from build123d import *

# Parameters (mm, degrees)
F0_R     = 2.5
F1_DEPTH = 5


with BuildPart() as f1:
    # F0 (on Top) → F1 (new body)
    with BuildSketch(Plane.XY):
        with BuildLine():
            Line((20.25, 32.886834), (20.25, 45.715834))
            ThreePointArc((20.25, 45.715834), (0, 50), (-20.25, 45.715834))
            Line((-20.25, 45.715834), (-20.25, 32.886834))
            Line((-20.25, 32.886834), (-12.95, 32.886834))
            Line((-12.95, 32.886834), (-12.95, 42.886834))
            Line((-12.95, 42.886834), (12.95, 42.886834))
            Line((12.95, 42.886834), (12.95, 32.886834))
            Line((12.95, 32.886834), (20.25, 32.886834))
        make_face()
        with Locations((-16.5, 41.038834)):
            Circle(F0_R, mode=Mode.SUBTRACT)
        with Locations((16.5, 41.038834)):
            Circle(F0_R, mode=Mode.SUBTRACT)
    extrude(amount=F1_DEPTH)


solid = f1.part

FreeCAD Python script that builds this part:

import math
import FreeCAD as App
import Part
import Sketcher

doc = App.newDocument("Part")
body = doc.addObject("PartDesign::Body", "Body")

sketch1 = body.newObject("Sketcher::SketchObject", "Sketch")
sketch1.AttachmentSupport = (doc.getObject("XY_Plane"), [""])
sketch1.MapMode = "FlatFace"
sketch1.addGeometry([
    Part.LineSegment(App.Vector(20.2, 32.9, 0), App.Vector(20.2, 45.7, 0)),
    Part.ArcOfCircle(Part.Circle(App.Vector(0, 0, 0), App.Vector(0, 0, 1), 50), math.radians(66), math.radians(114)),
    Part.LineSegment(App.Vector(-20.2, 45.7, 0), App.Vector(-20.2, 32.9, 0)),
    Part.LineSegment(App.Vector(-20.2, 32.9, 0), App.Vector(-12.9, 32.9, 0)),
    Part.LineSegment(App.Vector(-12.9, 32.9, 0), App.Vector(-12.9, 42.9, 0)),
    Part.LineSegment(App.Vector(-12.9, 42.9, 0), App.Vector(12.9, 42.9, 0)),
    Part.LineSegment(App.Vector(12.9, 42.9, 0), App.Vector(12.9, 32.9, 0)),
    Part.LineSegment(App.Vector(12.9, 32.9, 0), App.Vector(20.2, 32.9, 0)),
    Part.Circle(App.Vector(-16.5, 41, 0), App.Vector(0, 0, 1), 2.5),
    Part.Circle(App.Vector(16.5, 41, 0), App.Vector(0, 0, 1), 2.5),
], False)
sketch1.addConstraint([
    Sketcher.Constraint("Coincident", 0, 2, 1, 1),
    Sketcher.Constraint("Coincident", 1, 2, 2, 1),
    Sketcher.Constraint("Coincident", 2, 2, 3, 1),
    Sketcher.Constraint("Coincident", 3, 2, 4, 1),
    Sketcher.Constraint("Coincident", 4, 2, 5, 1),
    Sketcher.Constraint("Coincident", 5, 2, 6, 1),
    Sketcher.Constraint("Coincident", 6, 2, 7, 1),
    Sketcher.Constraint("Coincident", 7, 2, 0, 1),
    Sketcher.Constraint("Vertical", 0),
    Sketcher.Constraint("Vertical", 2),
    Sketcher.Constraint("Horizontal", 3),
    Sketcher.Constraint("Vertical", 4),
    Sketcher.Constraint("Horizontal", 5),
    Sketcher.Constraint("Vertical", 6),
    Sketcher.Constraint("Horizontal", 7),
    Sketcher.Constraint("Coincident", 1, 3, -1, 1),
    Sketcher.Constraint("Equal", 8, 9),
    Sketcher.Constraint("Symmetric", 8, 3, 9, 3, -2),
    Sketcher.Constraint("Symmetric", 3, 2, 6, 2, -2),
    Sketcher.Constraint("Horizontal", 0, 2, 1, 2),
    Sketcher.Constraint("Diameter", 8, 5.0),
    Sketcher.Constraint("DistanceY", 4, 1, 4, 2, 10.0),
    Sketcher.Constraint("DistanceX", 3, 1, 3, 2, 7.3),
    Sketcher.Constraint("DistanceX", 5, 1, 5, 2, 25.9),
    Sketcher.Constraint("DistanceX", 8, 3, 9, 3, 33.0),
    Sketcher.Constraint("DistanceY", 0, 1, 0, 2, 12.829),
    Sketcher.Constraint("Radius", 1, 49.999997),
    Sketcher.Constraint("DistanceY", 9, 3, 0, 2, 4.677),
])
pad1 = body.newObject("PartDesign::Pad", "Pad")
pad1.Profile = sketch1
pad1.Length = 5

doc.recompute()
